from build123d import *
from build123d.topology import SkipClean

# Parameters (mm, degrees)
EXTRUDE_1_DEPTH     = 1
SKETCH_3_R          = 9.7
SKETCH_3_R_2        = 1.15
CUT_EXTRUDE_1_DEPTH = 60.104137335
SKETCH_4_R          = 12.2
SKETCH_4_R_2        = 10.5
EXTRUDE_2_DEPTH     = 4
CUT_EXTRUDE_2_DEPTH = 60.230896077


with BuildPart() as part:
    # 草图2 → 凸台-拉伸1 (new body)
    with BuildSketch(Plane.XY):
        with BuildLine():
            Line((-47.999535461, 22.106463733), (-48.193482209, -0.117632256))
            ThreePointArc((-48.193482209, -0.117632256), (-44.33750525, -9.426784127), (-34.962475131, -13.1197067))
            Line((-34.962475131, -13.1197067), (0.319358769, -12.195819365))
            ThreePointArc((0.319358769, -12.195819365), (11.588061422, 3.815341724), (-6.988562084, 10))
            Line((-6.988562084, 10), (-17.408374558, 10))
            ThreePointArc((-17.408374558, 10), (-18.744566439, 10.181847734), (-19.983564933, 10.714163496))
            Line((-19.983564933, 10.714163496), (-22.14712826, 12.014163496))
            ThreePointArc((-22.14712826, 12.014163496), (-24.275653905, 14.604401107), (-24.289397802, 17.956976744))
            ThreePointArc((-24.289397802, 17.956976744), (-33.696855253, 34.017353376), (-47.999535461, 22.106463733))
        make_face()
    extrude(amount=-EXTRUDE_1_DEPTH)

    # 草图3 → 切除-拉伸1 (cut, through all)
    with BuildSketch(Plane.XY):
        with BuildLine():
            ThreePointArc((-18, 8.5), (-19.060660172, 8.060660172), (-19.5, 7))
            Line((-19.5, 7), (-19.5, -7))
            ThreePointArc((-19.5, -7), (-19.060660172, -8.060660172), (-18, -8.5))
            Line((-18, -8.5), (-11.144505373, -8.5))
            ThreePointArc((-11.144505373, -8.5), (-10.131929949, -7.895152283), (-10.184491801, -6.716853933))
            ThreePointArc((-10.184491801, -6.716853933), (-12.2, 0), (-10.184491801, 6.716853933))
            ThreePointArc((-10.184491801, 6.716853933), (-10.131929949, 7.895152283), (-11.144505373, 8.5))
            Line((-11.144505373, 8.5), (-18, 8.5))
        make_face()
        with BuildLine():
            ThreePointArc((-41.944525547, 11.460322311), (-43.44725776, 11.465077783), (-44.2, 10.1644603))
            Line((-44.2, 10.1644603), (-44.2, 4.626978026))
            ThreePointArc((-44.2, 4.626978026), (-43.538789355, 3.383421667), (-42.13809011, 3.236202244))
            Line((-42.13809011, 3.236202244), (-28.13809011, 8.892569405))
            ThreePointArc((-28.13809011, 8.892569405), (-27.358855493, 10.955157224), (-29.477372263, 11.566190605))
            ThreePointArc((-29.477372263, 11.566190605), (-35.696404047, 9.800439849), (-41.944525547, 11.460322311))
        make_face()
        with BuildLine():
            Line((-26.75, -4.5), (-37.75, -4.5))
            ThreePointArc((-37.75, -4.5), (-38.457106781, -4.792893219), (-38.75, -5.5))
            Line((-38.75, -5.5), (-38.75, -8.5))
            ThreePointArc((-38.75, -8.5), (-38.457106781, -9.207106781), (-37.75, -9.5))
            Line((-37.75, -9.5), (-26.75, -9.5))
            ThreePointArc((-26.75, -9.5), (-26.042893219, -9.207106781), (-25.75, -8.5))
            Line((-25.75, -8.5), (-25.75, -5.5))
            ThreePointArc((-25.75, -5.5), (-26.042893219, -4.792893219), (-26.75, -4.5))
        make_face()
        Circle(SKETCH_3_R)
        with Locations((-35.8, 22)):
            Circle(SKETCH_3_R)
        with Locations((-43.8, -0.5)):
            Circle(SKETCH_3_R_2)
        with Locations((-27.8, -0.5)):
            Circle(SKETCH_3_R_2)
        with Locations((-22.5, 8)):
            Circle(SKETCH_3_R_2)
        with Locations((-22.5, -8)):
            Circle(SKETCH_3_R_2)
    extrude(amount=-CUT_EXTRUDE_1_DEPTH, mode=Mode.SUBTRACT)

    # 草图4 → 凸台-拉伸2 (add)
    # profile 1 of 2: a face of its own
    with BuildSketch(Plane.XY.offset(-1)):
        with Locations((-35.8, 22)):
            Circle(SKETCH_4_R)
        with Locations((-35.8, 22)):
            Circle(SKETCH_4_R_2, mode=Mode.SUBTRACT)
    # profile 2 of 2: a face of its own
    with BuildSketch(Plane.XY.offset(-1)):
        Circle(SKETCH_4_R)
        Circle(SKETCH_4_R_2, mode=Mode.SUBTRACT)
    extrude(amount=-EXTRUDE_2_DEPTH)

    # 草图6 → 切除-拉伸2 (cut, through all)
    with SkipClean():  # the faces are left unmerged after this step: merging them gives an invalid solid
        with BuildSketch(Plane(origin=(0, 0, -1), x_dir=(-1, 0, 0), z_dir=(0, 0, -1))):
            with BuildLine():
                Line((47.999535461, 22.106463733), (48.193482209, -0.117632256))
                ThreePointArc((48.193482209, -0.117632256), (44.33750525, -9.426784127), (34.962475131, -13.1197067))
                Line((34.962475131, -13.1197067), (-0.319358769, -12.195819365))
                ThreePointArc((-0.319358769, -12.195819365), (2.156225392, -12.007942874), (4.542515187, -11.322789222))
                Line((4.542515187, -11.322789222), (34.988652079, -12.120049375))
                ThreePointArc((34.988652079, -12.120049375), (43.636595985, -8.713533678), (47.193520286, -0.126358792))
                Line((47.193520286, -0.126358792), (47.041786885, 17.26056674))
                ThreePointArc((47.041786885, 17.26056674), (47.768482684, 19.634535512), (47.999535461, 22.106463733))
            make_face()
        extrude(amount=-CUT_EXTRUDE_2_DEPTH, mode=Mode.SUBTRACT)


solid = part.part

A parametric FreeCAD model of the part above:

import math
import FreeCAD as App
import Part
import Sketcher
Q = App.Units.Quantity

doc = App.newDocument("Part")
body = doc.addObject("PartDesign::Body", "Body")

# Sketch on XY plane
sketch1 = doc.addObject("Sketcher::SketchObject", "Sketch")
body.addObject(sketch1)
sketch1.AttachmentSupport = (doc.XY_Plane, [""])
sketch1.MapMode = "FlatFace"
sketch1.addGeometry(Part.LineSegment(App.Vector(-48, 22.1, 0), App.Vector(-48.2, -0.1, 0)), False)
sketch1.addGeometry(Part.ArcOfCircle(Part.Circle(App.Vector(-35.3, -0.2, 0), App.Vector(0, 0, 1), 12.9), math.radians(179), math.radians(271)), False)
sketch1.addGeometry(Part.LineSegment(App.Vector(-35, -13.1, 0), App.Vector(0.3, -12.2, 0)), False)
sketch1.addGeometry(Part.ArcOfCircle(Part.Circle(App.Vector(0, 0, 0), App.Vector(0, 0, 1), 12.2), math.radians(-89), math.radians(125)), False)
sketch1.addGeometry(Part.LineSegment(App.Vector(-7, 10, 0), App.Vector(-17.4, 10, 0)), False)
sketch1.addGeometry(Part.ArcOfCircle(Part.Circle(App.Vector(-17.4, 15, 0), App.Vector(0, 0, 1), 5), math.radians(-121), math.radians(-90)), False)
sketch1.addGeometry(Part.LineSegment(App.Vector(-20, 10.7, 0), App.Vector(-22.1, 12, 0)), False)
sketch1.addGeometry(Part.ArcOfCircle(Part.Circle(App.Vector(-19.6, 16.3, 0), App.Vector(0, 0, 1), 5), math.radians(161), math.radians(239)), False)
sketch1.addGeometry(Part.ArcOfCircle(Part.Circle(App.Vector(-35.8, 22, 0), App.Vector(0, 0, 1), 12.2), math.radians(-19), math.radians(180)), False)
sketch1.addConstraint(Sketcher.Constraint("Tangent", 0, 2, 1, 1))
sketch1.addConstraint(Sketcher.Constraint("Tangent", 1, 2, 2, 1))
sketch1.addConstraint(Sketcher.Constraint("Tangent", 2, 2, 3, 1))
sketch1.addConstraint(Sketcher.Constraint("Coincident", 3, 2, 4, 1))
sketch1.addConstraint(Sketcher.Constraint("Tangent", 4, 2, 5, 2))
sketch1.addConstraint(Sketcher.Constraint("Tangent", 5, 1, 6, 1))
sketch1.addConstraint(Sketcher.Constraint("Tangent", 6, 2, 7, 2))
sketch1.addConstraint(Sketcher.Constraint("Tangent", 7, 1, 8, 1))
sketch1.addConstraint(Sketcher.Constraint("Tangent", 8, 2, 0, 1))
sketch1.addConstraint(Sketcher.Constraint("Horizontal", 4))
sketch1.addConstraint(Sketcher.Constraint("Coincident", 3, 3, -1, 1))
sketch1.addConstraint(Sketcher.Constraint("Equal", 5, 7))
sketch1.addConstraint(Sketcher.Constraint("Equal", 3, 8))
sketch1.addConstraint(Sketcher.Constraint("Radius", 5, 5.0))
sketch1.addConstraint(Sketcher.Constraint("Radius", 3, 12.2))
sketch1.addConstraint(Sketcher.Constraint("Angle", 6, Q("149 deg")))
sketch1.addConstraint(Sketcher.Constraint("DistanceY", -1, 1, 5, 3, 15.0))
sketch1.addConstraint(Sketcher.Constraint("DistanceY", -1, 1, 8, 3, 22.0))
sketch1.addConstraint(Sketcher.Constraint("Angle", 0, Q("-90.5 deg")))
sketch1.addConstraint(Sketcher.Constraint("Angle", 2, Q("1.5 deg")))
sketch1.addConstraint(Sketcher.Constraint("DistanceX", 1, 3, -1, 1, 35.3))
sketch1.addConstraint(Sketcher.Constraint("DistanceY", -1, 1, 7, 3, 16.3))
sketch1.addConstraint(Sketcher.Constraint("DistanceX", 8, 3, -1, 1, 35.8))
pad1 = doc.addObject("PartDesign::Pad", "Pad")
body.addObject(pad1)
pad1.Profile = sketch1
pad1.Length = 1
pad1.Reversed = True

# Sketch on XY plane
sketch2 = doc.addObject("Sketcher::SketchObject", "Sketch001")
body.addObject(sketch2)
sketch2.AttachmentSupport = (doc.XY_Plane, [""])
sketch2.MapMode = "FlatFace"
sketch2.addGeometry(Part.ArcOfCircle(Part.Circle(App.Vector(-18, 7, 0), App.Vector(0, 0, 1), 1.5), math.radians(90), math.radians(180)), False)
sketch2.addGeometry(Part.LineSegment(App.Vector(-19.5, 7, 0), App.Vector(-19.5, -7, 0)), False)
sketch2.addGeometry(Part.ArcOfCircle(Part.Circle(App.Vector(-18, -7, 0), App.Vector(0, 0, 1), 1.5), math.radians(180), math.radians(270)), False)
sketch2.addGeometry(Part.LineSegment(App.Vector(-18, -8.5, 0), App.Vector(-11.1, -8.5, 0)), False)
sketch2.addGeometry(Part.ArcOfCircle(Part.Circle(App.Vector(-11.1, -7.3, 0), App.Vector(0, 0, 1), 1.1), math.radians(-90), math.radians(33)), False)
sketch2.addGeometry(Part.ArcOfCircle(Part.Circle(App.Vector(0, 0, 0), App.Vector(0, 0, 1), 12.2), math.radians(147), math.radians(213)), False)
sketch2.addGeometry(Part.ArcOfCircle(Part.Circle(App.Vector(-11.1, 7.3, 0), App.Vector(0, 0, 1), 1.1), math.radians(-33), math.radians(90)), False)
sketch2.addGeometry(Part.LineSegment(App.Vector(-11.1, 8.5, 0), App.Vector(-18, 8.5, 0)), False)
sketch2.addGeometry(Part.ArcOfCircle(Part.Circle(App.Vector(-42.7, 10.2, 0), App.Vector(0, 0, 1), 1.5), math.radians(60), math.radians(180)), False)
sketch2.addGeometry(Part.LineSegment(App.Vector(-44.2, 10.2, 0), App.Vector(-44.2, 4.6, 0)), False)
sketch2.addGeometry(Part.ArcOfCircle(Part.Circle(App.Vector(-42.7, 4.6, 0), App.Vector(0, 0, 1), 1.5), math.radians(180), math.radians(292)), False)
sketch2.addGeometry(Part.LineSegment(App.Vector(-42.1, 3.2, 0), App.Vector(-28.1, 8.9, 0)), False)
sketch2.addGeometry(Part.ArcOfCircle(Part.Circle(App.Vector(-28.7, 10.3, 0), App.Vector(0, 0, 1), 1.5), math.radians(-68), math.radians(121)), False)
sketch2.addGeometry(Part.ArcOfCircle(Part.Circle(App.Vector(-35.8, 22, 0), App.Vector(0, 0, 1), 12.2), math.radians(-120), math.radians(-59)), False)
sketch2.addGeometry(Part.LineSegment(App.Vector(-26.8, -4.5, 0), App.Vector(-37.8, -4.5, 0)), False)
sketch2.addGeometry(Part.ArcOfCircle(Part.Circle(App.Vector(-37.7, -5.5, 0), App.Vector(0, 0, 1), 1), math.radians(90), math.radians(180)), False)
sketch2.addGeometry(Part.LineSegment(App.Vector(-38.8, -5.5, 0), App.Vector(-38.8, -8.5, 0)), False)
sketch2.addGeometry(Part.ArcOfCircle(Part.Circle(App.Vector(-37.7, -8.5, 0), App.Vector(0, 0, 1), 1), math.radians(-180), math.radians(-90)), False)
sketch2.addGeometry(Part.LineSegment(App.Vector(-37.8, -9.5, 0), App.Vector(-26.8, -9.5, 0)), False)
sketch2.addGeometry(Part.ArcOfCircle(Part.Circle(App.Vector(-26.8, -8.5, 0), App.Vector(0, 0, 1), 1), math.radians(-90), math.radians(0)), False)
sketch2.addGeometry(Part.LineSegment(App.Vector(-25.8, -8.5, 0), App.Vector(-25.8, -5.5, 0)), False)
sketch2.addGeometry(Part.ArcOfCircle(Part.Circle(App.Vector(-26.8, -5.5, 0), App.Vector(0, 0, 1), 1), math.radians(0), math.radians(90)), False)
sketch2.addGeometry(Part.Circle(App.Vector(0, 0, 0), App.Vector(0, 0, 1), 9.7), False)
sketch2.addGeometry(Part.Circle(App.Vector(-35.8, 22, 0), App.Vector(0, 0, 1), 9.7), False)
sketch2.addGeometry(Part.Circle(App.Vector(-43.8, -0.5, 0), App.Vector(0, 0, 1), 1.1), False)
sketch2.addGeometry(Part.Circle(App.Vector(-27.8, -0.5, 0), App.Vector(0, 0, 1), 1.1), False)
sketch2.addGeometry(Part.Circle(App.Vector(-22.5, 8, 0), App.Vector(0, 0, 1), 1.1), False)
sketch2.addGeometry(Part.Circle(App.Vector(-22.5, -8, 0), App.Vector(0, 0, 1), 1.1), False)
sketch2.addConstraint(Sketcher.Constraint("Tangent", 0, 2, 1, 1))
sketch2.addConstraint(Sketcher.Constraint("Tangent", 1, 2, 2, 1))
sketch2.addConstraint(Sketcher.Constraint("Tangent", 2, 2, 3, 1))
sketch2.addConstraint(Sketcher.Constraint("Tangent", 3, 2, 4, 1))
sketch2.addConstraint(Sketcher.Constraint("Tangent", 4, 2, 5, 2))
sketch2.addConstraint(Sketcher.Constraint("Tangent", 5, 1, 6, 1))
sketch2.addConstraint(Sketcher.Constraint("Tangent", 6, 2, 7, 1))
sketch2.addConstraint(Sketcher.Constraint("Tangent", 7, 2, 0, 1))
sketch2.addConstraint(Sketcher.Constraint("Tangent", 8, 2, 9, 1))
sketch2.addConstraint(Sketcher.Constraint("Tangent", 9, 2, 10, 1))
sketch2.addConstraint(Sketcher.Constraint("Tangent", 10, 2, 11, 1))
sketch2.addConstraint(Sketcher.Constraint("Tangent", 11, 2, 12, 1))
sketch2.addConstraint(Sketcher.Constraint("Tangent", 12, 2, 13, 2))
sketch2.addConstraint(Sketcher.Constraint("Tangent", 13, 1, 8, 1))
sketch2.addConstraint(Sketcher.Constraint("Tangent", 14, 2, 15, 1))
sketch2.addConstraint(Sketcher.Constraint("Tangent", 15, 2, 16, 1))
sketch2.addConstraint(Sketcher.Constraint("Tangent", 16, 2, 17, 1))
sketch2.addConstraint(Sketcher.Constraint("Tangent", 17, 2, 18, 1))
sketch2.addConstraint(Sketcher.Constraint("Tangent", 18, 2, 19, 1))
sketch2.addConstraint(Sketcher.Constraint("Tangent", 19, 2, 20, 1))
sketch2.addConstraint(Sketcher.Constraint("Tangent", 20, 2, 21, 1))
sketch2.addConstraint(Sketcher.Constraint("Tangent", 21, 2, 14, 1))
sketch2.addConstraint(Sketcher.Constraint("Vertical", 1))
sketch2.addConstraint(Sketcher.Constraint("Horizontal", 3))
sketch2.addConstraint(Sketcher.Constraint("Horizontal", 7))
sketch2.addConstraint(Sketcher.Constraint("Vertical", 9))
sketch2.addConstraint(Sketcher.Constraint("Horizontal", 14))
sketch2.addConstraint(Sketcher.Constraint("Vertical", 16))
sketch2.addConstraint(Sketcher.Constraint("Horizontal", 18))
sketch2.addConstraint(Sketcher.Constraint("Vertical", 20))
sketch2.addConstraint(Sketcher.Constraint("Coincident", 5, 3, -1, 1))
sketch2.addConstraint(Sketcher.Constraint("Coincident", 22, 3, -1, 1))
sketch2.addConstraint(Sketcher.Constraint("Coincident", 23, 3, 13, 3))
sketch2.addConstraint(Sketcher.Constraint("Equal", 0, 2))
sketch2.addConstraint(Sketcher.Constraint("Equal", 4, 6))
sketch2.addConstraint(Sketcher.Constraint("Equal", 2, 8))
sketch2.addConstraint(Sketcher.Constraint("Equal", 8, 10))
sketch2.addConstraint(Sketcher.Constraint("Equal", 10, 12))
sketch2.addConstraint(Sketcher.Constraint("Equal", 5, 13))
sketch2.addConstraint(Sketcher.Constraint("Equal", 15, 17))
sketch2.addConstraint(Sketcher.Constraint("Equal", 17, 19))
sketch2.addConstraint(Sketcher.Constraint("Equal", 19, 21))
sketch2.addConstraint(Sketcher.Constraint("Equal", 22, 23))
sketch2.addConstraint(Sketcher.Constraint("Equal", 6, 24))
sketch2.addConstraint(Sketcher.Constraint("Equal", 24, 25))
sketch2.addConstraint(Sketcher.Constraint("Equal", 25, 26))
sketch2.addConstraint(Sketcher.Constraint("Equal", 26, 27))
sketch2.addConstraint(Sketcher.Constraint("Symmetric", 26, 3, 27, 3, -1))
sketch2.addConstraint(Sketcher.Constraint("Horizontal", 24, 3, 25, 3))
sketch2.addConstraint(Sketcher.Constraint("Horizontal", 19, 3, 2, 2))
sketch2.addConstraint(Sketcher.Constraint("Vertical", 4, 3, 6, 3))
sketch2.addConstraint(Sketcher.Constraint("Radius", 15, 1.0))
sketch2.addConstraint(Sketcher.Constraint("Diameter", 22, 19.4))
sketch2.addConstraint(Sketcher.Constraint("Diameter", 24, 2.3))
sketch2.addConstraint(Sketcher.Constraint("Radius", 0, 1.5))
sketch2.addConstraint(Sketcher.Constraint("Radius", 5, 12.2))
sketch2.addConstraint(Sketcher.Constraint("DistanceX", 14, 2, 14, 1, 11.0))
sketch2.addConstraint(Sketcher.Constraint("DistanceY", 1, 2, 1, 1, 14.0))
sketch2.addConstraint(Sketcher.Constraint("DistanceY", 16, 2, 16, 1, 3.0))
sketch2.addConstraint(Sketcher.Constraint("Angle", 11, Q("22 deg")))
sketch2.addConstraint(Sketcher.Constraint("DistanceX", 0, 3, -1, 1, 18.0))
sketch2.addConstraint(Sketcher.Constraint("DistanceY", -1, 1, 13, 3, 22.0))
sketch2.addConstraint(Sketcher.Constraint("DistanceY", -1, 1, 26, 3, 8.0))
sketch2.addConstraint(Sketcher.Constraint("DistanceX", 8, 3, 12, 3, 14.0))
sketch2.addConstraint(Sketcher.Constraint("DistanceY", 15, 3, 24, 3, 5.0))
sketch2.addConstraint(Sketcher.Constraint("DistanceX", 26, 3, 0, 2, 3.0))
sketch2.addConstraint(Sketcher.Constraint("DistanceX", 8, 3, -1, 1, 42.7))
sketch2.addConstraint(Sketcher.Constraint("DistanceX", 13, 3, -1, 1, 35.8))
sketch2.addConstraint(Sketcher.Constraint("DistanceX", 24, 3, -1, 1, 43.8))
sketch2.addConstraint(Sketcher.Constraint("DistanceX", 25, 3, -1, 1, 27.8))
sketch2.addConstraint(Sketcher.Constraint("DistanceX", 15, 3, -1, 1, 37.75))
pocket1 = doc.addObject("PartDesign::Pocket", "Pocket")
body.addObject(pocket1)
pocket1.Profile = sketch2
pocket1.Type = "ThroughAll"

# Sketch on XY plane
sketch3 = doc.addObject("Sketcher::SketchObject", "Sketch002")
body.addObject(sketch3)
sketch3.AttachmentSupport = (doc.XY_Plane, [""])
sketch3.MapMode = "FlatFace"
sketch3.AttachmentOffset = App.Placement(App.Vector(0, 0, -1), App.Rotation())
sketch3.addGeometry(Part.Circle(App.Vector(-36, 22, 0), App.Vector(0, 0, 1), 12), False)
sketch3.addGeometry(Part.Circle(App.Vector(-36, 22, 0), App.Vector(0, 0, 1), 10), False)
sketch3.addGeometry(Part.Circle(App.Vector(0, 0, 0), App.Vector(0, 0, 1), 12), False)
sketch3.addGeometry(Part.Circle(App.Vector(0, 0, 0), App.Vector(0, 0, 1), 10), False)
sketch3.addConstraint(Sketcher.Constraint("Coincident", 2, 3, -1, 1))
sketch3.addConstraint(Sketcher.Constraint("Coincident", 3, 3, -1, 1))
sketch3.addConstraint(Sketcher.Constraint("Coincident", 1, 3, 0, 3))
sketch3.addConstraint(Sketcher.Constraint("Equal", 0, 2))
sketch3.addConstraint(Sketcher.Constraint("Equal", 1, 3))
sketch3.addConstraint(Sketcher.Constraint("Diameter", 1, 21.0))
sketch3.addConstraint(Sketcher.Constraint("Diameter", 0, 24.4))
sketch3.addConstraint(Sketcher.Constraint("DistanceY", -1, 1, 0, 3, 22.0))
sketch3.addConstraint(Sketcher.Constraint("DistanceX", 0, 3, -1, 1, 35.8))
pad2 = doc.addObject("PartDesign::Pad", "Pad001")
body.addObject(pad2)
pad2.Profile = sketch3
pad2.Length = 4
pad2.Reversed = True

# Sketch on XY plane
sketch4 = doc.addObject("Sketcher::SketchObject", "Sketch003")
body.addObject(sketch4)
sketch4.AttachmentSupport = (doc.XY_Plane, [""])
sketch4.MapMode = "FlatFace"
sketch4.AttachmentOffset = App.Placement(App.Vector(0, 0, -1), App.Rotation())
sketch4.addGeometry(Part.LineSegment(App.Vector(-48.2, -0.1, 0), App.Vector(-48, 22.1, 0)), False)
sketch4.addGeometry(Part.ArcOfCircle(Part.Circle(App.Vector(-35.8, 22, 0), App.Vector(0, 0, 1), 12.2), math.radians(179), math.radians(203)), False)
sketch4.addGeometry(Part.LineSegment(App.Vector(-47, 17.3, 0), App.Vector(-47.2, -0.1, 0)), False)
sketch4.addGeometry(Part.ArcOfCircle(Part.Circle(App.Vector(-35.3, -0.2, 0), App.Vector(0, 0, 1), 11.9), math.radians(180), math.radians(272)), False)
sketch4.addGeometry(Part.LineSegment(App.Vector(-35, -12.1, 0), App.Vector(-4.5, -11.3, 0)), False)
sketch4.addGeometry(Part.ArcOfCircle(Part.Circle(App.Vector(0, 0, 0), App.Vector(0, 0, 1), 12.2), math.radians(-112), math.radians(-88)), False)
sketch4.addGeometry(Part.LineSegment(App.Vector(0.3, -12.2, 0), App.Vector(-35, -13.1, 0)), False)
sketch4.addGeometry(Part.ArcOfCircle(Part.Circle(App.Vector(-35.3, -0.2, 0), App.Vector(0, 0, 1), 12.9), math.radians(179), math.radians(271)), False)
sketch4.addConstraint(Sketcher.Constraint("Tangent", 0, 2, 1, 1))
sketch4.addConstraint(Sketcher.Constraint("Coincident", 1, 2, 2, 1))
sketch4.addConstraint(Sketcher.Constraint("Tangent", 2, 2, 3, 1))
sketch4.addConstraint(Sketcher.Constraint("Tangent", 3, 2, 4, 1))
sketch4.addConstraint(Sketcher.Constraint("Coincident", 4, 2, 5, 1))
sketch4.addConstraint(Sketcher.Constraint("Tangent", 5, 2, 6, 1))
sketch4.addConstraint(Sketcher.Constraint("Tangent", 6, 2, 7, 2))
sketch4.addConstraint(Sketcher.Constraint("Tangent", 7, 1, 0, 1))
sketch4.addConstraint(Sketcher.Constraint("Coincident", 5, 3, -1, 1))
sketch4.addConstraint(Sketcher.Constraint("Coincident", 7, 3, 3, 3))
sketch4.addConstraint(Sketcher.Constraint("Equal", 1, 5))
sketch4.addConstraint(Sketcher.Constraint("Parallel", 0, 2))
sketch4.addConstraint(Sketcher.Constraint("Parallel", 4, 6))
sketch4.addConstraint(Sketcher.Constraint("Radius", 1, 12.2))
sketch4.addConstraint(Sketcher.Constraint("DistanceY", -1, 1, 1, 3, 22.0))
sketch4.addConstraint(Sketcher.Constraint("Angle", 0, Q("89.5 deg")))
sketch4.addConstraint(Sketcher.Constraint("Angle", 4, Q("1.5 deg")))
sketch4.addConstraint(Sketcher.Constraint("DistanceX", 1, 3, -1, 1, 35.8))
sketch4.addConstraint(Sketcher.Constraint("DistanceX", 3, 3, -1, 1, 35.3))
sketch4.addConstraint(Sketcher.Constraint("Radius", 3, 11.893973))
pocket2 = doc.addObject("PartDesign::Pocket", "Pocket001")
body.addObject(pocket2)
pocket2.Profile = sketch4
pocket2.Type = "ThroughAll"
pocket2.Reversed = True

doc.recompute()
